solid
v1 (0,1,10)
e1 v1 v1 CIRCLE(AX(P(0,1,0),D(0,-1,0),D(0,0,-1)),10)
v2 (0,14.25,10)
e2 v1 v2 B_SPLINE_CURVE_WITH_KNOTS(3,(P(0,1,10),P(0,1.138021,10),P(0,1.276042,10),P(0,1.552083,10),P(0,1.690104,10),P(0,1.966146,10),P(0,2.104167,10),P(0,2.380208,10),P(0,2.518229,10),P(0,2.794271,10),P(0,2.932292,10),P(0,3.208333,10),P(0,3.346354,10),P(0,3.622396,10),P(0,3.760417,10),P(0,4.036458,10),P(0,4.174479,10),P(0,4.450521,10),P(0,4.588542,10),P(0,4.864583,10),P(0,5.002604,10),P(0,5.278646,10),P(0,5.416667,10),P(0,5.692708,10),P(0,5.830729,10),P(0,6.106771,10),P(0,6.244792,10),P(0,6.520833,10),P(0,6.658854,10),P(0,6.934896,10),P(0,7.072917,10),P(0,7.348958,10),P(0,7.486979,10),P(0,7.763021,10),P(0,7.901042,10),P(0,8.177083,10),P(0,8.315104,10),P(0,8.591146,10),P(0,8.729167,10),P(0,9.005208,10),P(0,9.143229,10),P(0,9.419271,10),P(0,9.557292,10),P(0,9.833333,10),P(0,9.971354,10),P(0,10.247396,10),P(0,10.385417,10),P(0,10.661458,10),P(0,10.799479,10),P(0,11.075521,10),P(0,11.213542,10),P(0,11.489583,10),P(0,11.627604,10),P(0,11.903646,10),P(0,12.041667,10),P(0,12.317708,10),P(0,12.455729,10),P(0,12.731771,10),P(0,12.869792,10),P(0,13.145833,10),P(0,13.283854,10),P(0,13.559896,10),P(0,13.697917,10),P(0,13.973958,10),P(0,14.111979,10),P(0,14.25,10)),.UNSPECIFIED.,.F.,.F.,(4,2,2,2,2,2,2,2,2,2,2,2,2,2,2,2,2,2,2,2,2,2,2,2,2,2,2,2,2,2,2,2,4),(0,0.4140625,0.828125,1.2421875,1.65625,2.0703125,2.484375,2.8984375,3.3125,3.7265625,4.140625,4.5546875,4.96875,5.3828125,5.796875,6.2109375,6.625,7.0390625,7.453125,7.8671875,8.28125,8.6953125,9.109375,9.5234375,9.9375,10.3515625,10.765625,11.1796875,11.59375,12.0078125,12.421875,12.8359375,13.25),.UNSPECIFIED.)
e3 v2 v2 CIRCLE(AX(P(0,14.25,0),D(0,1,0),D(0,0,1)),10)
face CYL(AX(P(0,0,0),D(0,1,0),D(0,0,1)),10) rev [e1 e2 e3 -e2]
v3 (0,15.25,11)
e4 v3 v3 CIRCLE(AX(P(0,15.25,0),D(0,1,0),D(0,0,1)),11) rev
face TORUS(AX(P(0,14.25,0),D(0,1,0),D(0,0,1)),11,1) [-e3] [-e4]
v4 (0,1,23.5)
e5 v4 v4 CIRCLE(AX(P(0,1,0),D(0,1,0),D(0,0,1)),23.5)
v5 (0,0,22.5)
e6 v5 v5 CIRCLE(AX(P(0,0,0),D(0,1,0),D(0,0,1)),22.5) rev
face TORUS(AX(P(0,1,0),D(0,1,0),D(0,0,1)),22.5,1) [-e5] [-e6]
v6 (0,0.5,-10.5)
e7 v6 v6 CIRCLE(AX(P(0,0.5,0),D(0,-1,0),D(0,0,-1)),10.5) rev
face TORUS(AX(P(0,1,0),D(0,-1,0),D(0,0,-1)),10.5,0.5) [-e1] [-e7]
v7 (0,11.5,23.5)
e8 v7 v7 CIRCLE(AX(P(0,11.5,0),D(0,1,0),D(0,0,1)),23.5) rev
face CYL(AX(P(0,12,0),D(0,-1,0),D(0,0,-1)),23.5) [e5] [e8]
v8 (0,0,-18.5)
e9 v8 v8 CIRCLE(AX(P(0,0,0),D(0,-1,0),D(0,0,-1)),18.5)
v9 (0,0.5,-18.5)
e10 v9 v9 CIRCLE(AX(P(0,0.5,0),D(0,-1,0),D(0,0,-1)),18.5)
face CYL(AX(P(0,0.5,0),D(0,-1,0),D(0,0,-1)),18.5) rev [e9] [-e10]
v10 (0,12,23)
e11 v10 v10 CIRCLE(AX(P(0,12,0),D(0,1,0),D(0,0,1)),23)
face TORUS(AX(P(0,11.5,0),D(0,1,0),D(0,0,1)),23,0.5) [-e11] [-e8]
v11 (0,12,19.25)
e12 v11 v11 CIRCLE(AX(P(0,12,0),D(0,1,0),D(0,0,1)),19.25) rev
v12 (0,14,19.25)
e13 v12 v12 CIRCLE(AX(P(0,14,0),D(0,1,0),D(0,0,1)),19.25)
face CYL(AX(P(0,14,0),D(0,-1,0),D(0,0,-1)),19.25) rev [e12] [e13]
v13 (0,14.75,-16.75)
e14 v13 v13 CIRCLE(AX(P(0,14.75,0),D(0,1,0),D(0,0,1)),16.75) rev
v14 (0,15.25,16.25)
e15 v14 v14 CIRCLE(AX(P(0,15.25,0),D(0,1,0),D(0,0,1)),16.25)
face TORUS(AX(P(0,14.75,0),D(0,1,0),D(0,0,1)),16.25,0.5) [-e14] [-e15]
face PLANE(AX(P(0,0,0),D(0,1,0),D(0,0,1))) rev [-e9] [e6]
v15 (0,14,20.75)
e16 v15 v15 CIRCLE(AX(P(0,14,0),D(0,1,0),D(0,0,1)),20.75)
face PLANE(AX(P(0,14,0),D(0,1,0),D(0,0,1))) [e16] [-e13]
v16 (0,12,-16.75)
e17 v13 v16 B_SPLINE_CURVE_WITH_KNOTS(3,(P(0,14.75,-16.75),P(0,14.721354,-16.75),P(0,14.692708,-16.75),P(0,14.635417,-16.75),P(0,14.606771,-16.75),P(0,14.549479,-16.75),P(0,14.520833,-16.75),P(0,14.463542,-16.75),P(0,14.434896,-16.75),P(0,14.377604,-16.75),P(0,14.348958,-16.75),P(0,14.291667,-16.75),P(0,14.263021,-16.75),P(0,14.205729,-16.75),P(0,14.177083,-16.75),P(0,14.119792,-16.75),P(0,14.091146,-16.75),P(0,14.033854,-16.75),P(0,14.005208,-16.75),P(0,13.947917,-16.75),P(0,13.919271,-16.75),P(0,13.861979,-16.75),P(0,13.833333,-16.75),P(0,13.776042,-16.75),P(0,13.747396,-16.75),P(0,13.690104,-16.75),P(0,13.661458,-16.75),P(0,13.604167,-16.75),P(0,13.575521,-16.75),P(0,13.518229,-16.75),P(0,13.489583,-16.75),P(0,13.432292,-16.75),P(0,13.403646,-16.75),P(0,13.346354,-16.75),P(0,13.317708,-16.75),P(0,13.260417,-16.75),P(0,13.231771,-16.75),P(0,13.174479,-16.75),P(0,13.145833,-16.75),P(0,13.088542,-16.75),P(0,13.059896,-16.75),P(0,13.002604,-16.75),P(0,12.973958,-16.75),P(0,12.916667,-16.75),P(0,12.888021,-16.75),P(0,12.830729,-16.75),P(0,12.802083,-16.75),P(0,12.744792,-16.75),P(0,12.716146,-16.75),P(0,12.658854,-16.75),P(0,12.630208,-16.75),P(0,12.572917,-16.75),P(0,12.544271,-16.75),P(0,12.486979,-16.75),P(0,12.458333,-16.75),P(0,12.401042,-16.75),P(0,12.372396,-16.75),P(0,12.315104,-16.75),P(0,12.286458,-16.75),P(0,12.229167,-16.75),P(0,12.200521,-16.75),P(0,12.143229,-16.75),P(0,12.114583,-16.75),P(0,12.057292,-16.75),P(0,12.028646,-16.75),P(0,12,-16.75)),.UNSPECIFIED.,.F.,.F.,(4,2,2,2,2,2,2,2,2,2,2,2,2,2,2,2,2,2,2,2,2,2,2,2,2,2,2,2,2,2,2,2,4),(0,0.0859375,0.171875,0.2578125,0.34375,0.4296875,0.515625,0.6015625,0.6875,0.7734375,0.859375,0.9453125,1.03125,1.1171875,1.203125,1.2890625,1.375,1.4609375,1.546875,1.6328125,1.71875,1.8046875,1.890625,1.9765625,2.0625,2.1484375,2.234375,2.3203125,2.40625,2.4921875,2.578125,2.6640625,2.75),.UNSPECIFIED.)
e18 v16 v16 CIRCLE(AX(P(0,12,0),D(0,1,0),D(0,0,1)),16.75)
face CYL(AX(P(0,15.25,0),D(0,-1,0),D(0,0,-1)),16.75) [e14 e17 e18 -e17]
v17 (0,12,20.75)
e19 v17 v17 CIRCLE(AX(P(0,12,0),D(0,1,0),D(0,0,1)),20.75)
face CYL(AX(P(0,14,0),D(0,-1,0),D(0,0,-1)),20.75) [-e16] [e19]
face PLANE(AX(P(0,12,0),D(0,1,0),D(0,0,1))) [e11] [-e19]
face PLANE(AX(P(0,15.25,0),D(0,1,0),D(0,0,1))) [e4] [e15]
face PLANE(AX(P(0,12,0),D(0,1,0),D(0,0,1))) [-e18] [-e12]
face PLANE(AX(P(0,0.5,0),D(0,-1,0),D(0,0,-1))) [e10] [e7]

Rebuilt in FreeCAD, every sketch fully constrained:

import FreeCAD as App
import Part
import Sketcher
from FreeCAD import Vector


def edges_at(feature, points):
    """Names of the edges that pass closest to the given points."""
    edges = feature.Shape.Edges
    near = lambda p: min(range(len(edges)), key=lambda i: edges[i].distToShape(Part.Vertex(*p))[0])
    return sorted({f"Edge{near(p) + 1}" for p in points})

doc = App.newDocument("Part")
body = doc.addObject("PartDesign::Body", "Body")

sketch1 = doc.addObject("Sketcher::SketchObject", "Sketch")
body.addObject(sketch1)
sketch1.AttachmentSupport = (doc.XZ_Plane, [""])
sketch1.MapMode = "FlatFace"
sketch1.addGeometry(Part.Circle(Vector(0, 0, 0), Vector(0, 0, 1), 23.5), False)
sketch1.addConstraint([
    Sketcher.Constraint("Coincident", 0, 3, -1, 1),
    Sketcher.Constraint("Diameter", 0, 47.0),
])
pad1 = doc.addObject("PartDesign::Pad", "Pad")
body.addObject(pad1)
pad1.Profile = sketch1
pad1.Length = 12
pad1.Reversed = True

sketch2 = doc.addObject("Sketcher::SketchObject", "Sketch001")
body.addObject(sketch2)
sketch2.AttachmentSupport = (doc.XZ_Plane, [""])
sketch2.MapMode = "FlatFace"
sketch2.AttachmentOffset = App.Placement(Vector(0, 0, -12), App.Rotation())
sketch2.addGeometry(Part.Circle(Vector(0, 0, 0), Vector(0, 0, 1), 16.75), False)
sketch2.addConstraint([
    Sketcher.Constraint("Coincident", 0, 3, -1, 1),
    Sketcher.Constraint("Diameter", 0, 33.5),
])
pad2 = doc.addObject("PartDesign::Pad", "Pad001")
body.addObject(pad2)
pad2.Profile = sketch2
pad2.Length = 3.25
pad2.Reversed = True

sketch3 = doc.addObject("Sketcher::SketchObject", "Sketch002")
body.addObject(sketch3)
sketch3.AttachmentSupport = (doc.XZ_Plane, [""])
sketch3.MapMode = "FlatFace"
sketch3.AttachmentOffset = App.Placement(Vector(0, 0, -15.25), App.Rotation())
sketch3.addGeometry(Part.Circle(Vector(0, 0, 0), Vector(0, 0, 1), 10), False)
sketch3.addConstraint([
    Sketcher.Constraint("Coincident", 0, 3, -1, 1),
    Sketcher.Constraint("Diameter", 0, 20.0),
])
pocket1 = doc.addObject("PartDesign::Pocket", "Pocket")
body.addObject(pocket1)
pocket1.Profile = sketch3
pocket1.Type = "ThroughAll"
pocket1.Reversed = True

sketch4 = doc.addObject("Sketcher::SketchObject", "Sketch003")
body.addObject(sketch4)
sketch4.AttachmentSupport = (doc.XZ_Plane, [""])
sketch4.MapMode = "FlatFace"
sketch4.AttachmentOffset = App.Placement(Vector(0, 0, -12), App.Rotation())
sketch4.addGeometry([
    Part.Circle(Vector(0, 0, 0), Vector(0, 0, 1), 20.75),
    Part.Circle(Vector(0, 0, 0), Vector(0, 0, 1), 19.25),
], False)
sketch4.addConstraint([
    Sketcher.Constraint("Coincident", 0, 3, -1, 1),
    Sketcher.Constraint("Coincident", 1, 3, -1, 1),
    Sketcher.Constraint("Diameter", 0, 41.5),
    Sketcher.Constraint("Diameter", 1, 38.5),
])
pad3 = doc.addObject("PartDesign::Pad", "Pad002")
body.addObject(pad3)
pad3.Profile = sketch4
pad3.Length = 2
pad3.Reversed = True
doc.recompute()

fillet = doc.addObject("PartDesign::Fillet", "Fillet")
body.addObject(fillet)
fillet.Base = (pad3, edges_at(pad3, [(0, 0, -23.5)]))
fillet.Radius = 1
doc.recompute()

fillet2 = doc.addObject("PartDesign::Fillet", "Fillet001")
body.addObject(fillet2)
fillet2.Base = (fillet, edges_at(fillet, [(0, 15.25, -10)]))
fillet2.Radius = 1
doc.recompute()

fillet3 = doc.addObject("PartDesign::Fillet", "Fillet002")
body.addObject(fillet3)
fillet3.Base = (fillet2, edges_at(fillet2, [(0, 15.25, 16.75)]))
fillet3.Radius = 0.5
doc.recompute()

fillet4 = doc.addObject("PartDesign::Fillet", "Fillet003")
body.addObject(fillet4)
fillet4.Base = (fillet3, edges_at(fillet3, [(0, 0, -10), (0, 12, -23.5)]))
fillet4.Radius = 0.5

sketch5 = doc.addObject("Sketcher::SketchObject", "Sketch004")
body.addObject(sketch5)
sketch5.AttachmentSupport = (doc.XZ_Plane, [""])
sketch5.MapMode = "FlatFace"
sketch5.addGeometry(Part.Circle(Vector(0, 0, 0), Vector(0, 0, 1), 18.5), False)
sketch5.addConstraint([
    Sketcher.Constraint("Coincident", 0, 3, -1, 1),
    Sketcher.Constraint("Diameter", 0, 37.0),
])
pocket2 = doc.addObject("PartDesign::Pocket", "Pocket001")
body.addObject(pocket2)
pocket2.Profile = sketch5
pocket2.Length = 0.5
doc.recompute()

fillet5 = doc.addObject("PartDesign::Fillet", "Fillet004")
body.addObject(fillet5)
fillet5.Base = (pocket2, edges_at(pocket2, [(0, 0.5, -10)]))
fillet5.Radius = 0.5

doc.recompute()
